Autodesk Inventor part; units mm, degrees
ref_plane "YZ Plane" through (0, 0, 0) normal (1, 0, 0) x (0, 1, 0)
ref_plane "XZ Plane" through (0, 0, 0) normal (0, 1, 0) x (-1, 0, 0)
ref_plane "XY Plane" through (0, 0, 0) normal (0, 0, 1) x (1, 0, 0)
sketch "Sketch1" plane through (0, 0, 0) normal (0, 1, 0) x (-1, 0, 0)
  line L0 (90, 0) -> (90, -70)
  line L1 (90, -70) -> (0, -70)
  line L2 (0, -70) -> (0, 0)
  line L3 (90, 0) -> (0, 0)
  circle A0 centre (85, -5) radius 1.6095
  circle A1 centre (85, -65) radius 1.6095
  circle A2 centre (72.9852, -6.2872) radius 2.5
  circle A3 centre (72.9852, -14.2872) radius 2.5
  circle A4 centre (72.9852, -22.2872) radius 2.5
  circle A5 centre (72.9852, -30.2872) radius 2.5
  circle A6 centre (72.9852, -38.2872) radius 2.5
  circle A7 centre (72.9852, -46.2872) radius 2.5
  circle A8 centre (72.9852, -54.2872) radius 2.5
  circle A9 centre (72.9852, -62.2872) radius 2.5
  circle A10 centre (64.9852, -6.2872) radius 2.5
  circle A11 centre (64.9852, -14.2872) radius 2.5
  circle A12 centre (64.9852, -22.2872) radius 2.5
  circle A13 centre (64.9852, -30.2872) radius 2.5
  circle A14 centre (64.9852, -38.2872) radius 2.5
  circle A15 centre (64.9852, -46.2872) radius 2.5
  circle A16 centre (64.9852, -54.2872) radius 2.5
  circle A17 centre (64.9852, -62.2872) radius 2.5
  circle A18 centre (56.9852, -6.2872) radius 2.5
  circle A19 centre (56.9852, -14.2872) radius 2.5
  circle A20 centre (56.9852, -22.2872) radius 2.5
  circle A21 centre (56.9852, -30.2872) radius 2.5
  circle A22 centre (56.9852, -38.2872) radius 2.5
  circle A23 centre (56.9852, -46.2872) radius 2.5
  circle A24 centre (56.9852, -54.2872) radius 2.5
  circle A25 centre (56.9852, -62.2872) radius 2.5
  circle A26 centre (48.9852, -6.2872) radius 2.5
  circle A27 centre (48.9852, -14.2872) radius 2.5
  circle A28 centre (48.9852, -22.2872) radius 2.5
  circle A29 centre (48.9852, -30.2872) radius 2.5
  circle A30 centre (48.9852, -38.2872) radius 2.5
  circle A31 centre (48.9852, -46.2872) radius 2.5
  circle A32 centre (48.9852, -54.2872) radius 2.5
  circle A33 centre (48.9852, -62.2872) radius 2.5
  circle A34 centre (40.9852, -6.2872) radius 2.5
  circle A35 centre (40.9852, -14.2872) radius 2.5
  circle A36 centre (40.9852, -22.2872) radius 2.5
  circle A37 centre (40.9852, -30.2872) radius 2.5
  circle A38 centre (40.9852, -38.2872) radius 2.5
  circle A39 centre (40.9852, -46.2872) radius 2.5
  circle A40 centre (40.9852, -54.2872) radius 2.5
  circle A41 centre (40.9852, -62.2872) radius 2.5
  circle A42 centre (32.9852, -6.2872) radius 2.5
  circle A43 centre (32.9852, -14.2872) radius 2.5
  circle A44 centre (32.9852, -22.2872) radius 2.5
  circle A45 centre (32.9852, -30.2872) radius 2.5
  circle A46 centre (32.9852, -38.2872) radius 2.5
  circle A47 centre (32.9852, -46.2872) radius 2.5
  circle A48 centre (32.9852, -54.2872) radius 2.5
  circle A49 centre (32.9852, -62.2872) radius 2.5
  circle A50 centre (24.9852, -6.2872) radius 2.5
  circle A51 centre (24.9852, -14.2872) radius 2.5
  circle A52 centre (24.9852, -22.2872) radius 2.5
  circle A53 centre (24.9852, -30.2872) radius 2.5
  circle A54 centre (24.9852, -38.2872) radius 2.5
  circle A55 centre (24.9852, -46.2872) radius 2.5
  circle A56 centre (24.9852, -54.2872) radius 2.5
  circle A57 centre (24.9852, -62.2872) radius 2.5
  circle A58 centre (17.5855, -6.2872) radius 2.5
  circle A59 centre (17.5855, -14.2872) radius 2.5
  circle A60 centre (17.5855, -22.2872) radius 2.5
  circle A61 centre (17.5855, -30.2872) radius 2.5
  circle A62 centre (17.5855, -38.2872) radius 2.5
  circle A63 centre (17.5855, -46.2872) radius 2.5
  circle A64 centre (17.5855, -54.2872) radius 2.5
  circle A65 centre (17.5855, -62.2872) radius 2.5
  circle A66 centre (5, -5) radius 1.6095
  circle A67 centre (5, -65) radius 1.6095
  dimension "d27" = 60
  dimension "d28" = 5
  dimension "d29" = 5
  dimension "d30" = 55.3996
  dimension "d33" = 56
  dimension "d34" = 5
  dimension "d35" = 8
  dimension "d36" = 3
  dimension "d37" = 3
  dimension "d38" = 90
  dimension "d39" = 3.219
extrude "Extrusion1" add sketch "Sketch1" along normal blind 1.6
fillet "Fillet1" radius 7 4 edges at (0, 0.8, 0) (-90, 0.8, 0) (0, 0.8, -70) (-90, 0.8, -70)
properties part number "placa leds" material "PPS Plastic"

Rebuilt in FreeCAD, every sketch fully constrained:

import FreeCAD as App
import Part
import Sketcher

V = App.Vector
Q = App.Units.Quantity


def edges_at(feature, points):
    """Names of the edges that pass closest to the given points."""
    edges = feature.Shape.Edges
    near = lambda p: min(range(len(edges)), key=lambda i: edges[i].distToShape(Part.Vertex(*p))[0])
    return sorted({f"Edge{near(p) + 1}" for p in points})

doc = App.newDocument("Part")
body = doc.addObject("PartDesign::Body", "Body")

# Sketch on XZ plane
sketch1 = doc.addObject("Sketcher::SketchObject", "Sketch")
body.addObject(sketch1)
sketch1.AttachmentSupport = (doc.XZ_Plane, [""])
sketch1.MapMode = "FlatFace"
sketch1.addGeometry([
    Part.LineSegment(V(-90, -70, 0), V(-90, 0, 0)),  # 0
    Part.LineSegment(V(-90, 0, 0), V(0, 0, 0)),  # 1
    Part.LineSegment(V(0, 0, 0), V(0, -70, 0)),  # 2
    Part.LineSegment(V(0, -70, 0), V(-90, -70, 0)),  # 3
    Part.Circle(V(-5, -65, 0), V(0, 0, 1), 1.6),  # 4
    Part.Circle(V(-17.6, -62.3, 0), V(0, 0, 1), 2.5),  # 5
    Part.Circle(V(-17.6, -54.3, 0), V(0, 0, 1), 2.5),  # 6
    Part.Circle(V(-25, -62.3, 0), V(0, 0, 1), 2.5),  # 7
    Part.Circle(V(-33, -62.3, 0), V(0, 0, 1), 2.5),  # 8
    Part.Circle(V(-41, -62.3, 0), V(0, 0, 1), 2.5),  # 9
    Part.Circle(V(-25, -54.3, 0), V(0, 0, 1), 2.5),  # 10
    Part.Circle(V(-33, -54.3, 0), V(0, 0, 1), 2.5),  # 11
    Part.Circle(V(-41, -54.3, 0), V(0, 0, 1), 2.5),  # 12
    Part.Circle(V(-17.6, -46.3, 0), V(0, 0, 1), 2.5),  # 13
    Part.Circle(V(-17.6, -38.3, 0), V(0, 0, 1), 2.5),  # 14
    Part.Circle(V(-25, -46.3, 0), V(0, 0, 1), 2.5),  # 15
    Part.Circle(V(-33, -46.3, 0), V(0, 0, 1), 2.5),  # 16
    Part.Circle(V(-41, -46.3, 0), V(0, 0, 1), 2.5),  # 17
    Part.Circle(V(-25, -38.3, 0), V(0, 0, 1), 2.5),  # 18
    Part.Circle(V(-33, -38.3, 0), V(0, 0, 1), 2.5),  # 19
    Part.Circle(V(-41, -38.3, 0), V(0, 0, 1), 2.5),  # 20
    Part.Circle(V(-49, -62.3, 0), V(0, 0, 1), 2.5),  # 21
    Part.Circle(V(-57, -62.3, 0), V(0, 0, 1), 2.5),  # 22
    Part.Circle(V(-65, -62.3, 0), V(0, 0, 1), 2.5),  # 23
    Part.Circle(V(-49, -54.3, 0), V(0, 0, 1), 2.5),  # 24
    Part.Circle(V(-57, -54.3, 0), V(0, 0, 1), 2.5),  # 25
    Part.Circle(V(-65, -54.3, 0), V(0, 0, 1), 2.5),  # 26
    Part.Circle(V(-73, -62.3, 0), V(0, 0, 1), 2.5),  # 27
    Part.Circle(V(-85, -65, 0), V(0, 0, 1), 1.6),  # 28
    Part.Circle(V(-73, -54.3, 0), V(0, 0, 1), 2.5),  # 29
    Part.Circle(V(-49, -46.3, 0), V(0, 0, 1), 2.5),  # 30
    Part.Circle(V(-57, -46.3, 0), V(0, 0, 1), 2.5),  # 31
    Part.Circle(V(-65, -46.3, 0), V(0, 0, 1), 2.5),  # 32
    Part.Circle(V(-49, -38.3, 0), V(0, 0, 1), 2.5),  # 33
    Part.Circle(V(-57, -38.3, 0), V(0, 0, 1), 2.5),  # 34
    Part.Circle(V(-65, -38.3, 0), V(0, 0, 1), 2.5),  # 35
    Part.Circle(V(-73, -46.3, 0), V(0, 0, 1), 2.5),  # 36
    Part.Circle(V(-73, -38.3, 0), V(0, 0, 1), 2.5),  # 37
    Part.Circle(V(-17.6, -30.3, 0), V(0, 0, 1), 2.5),  # 38
    Part.Circle(V(-17.6, -22.3, 0), V(0, 0, 1), 2.5),  # 39
    Part.Circle(V(-25, -30.3, 0), V(0, 0, 1), 2.5),  # 40
    Part.Circle(V(-33, -30.3, 0), V(0, 0, 1), 2.5),  # 41
    Part.Circle(V(-41, -30.3, 0), V(0, 0, 1), 2.5),  # 42
    Part.Circle(V(-25, -22.3, 0), V(0, 0, 1), 2.5),  # 43
    Part.Circle(V(-33, -22.3, 0), V(0, 0, 1), 2.5),  # 44
    Part.Circle(V(-41, -22.3, 0), V(0, 0, 1), 2.5),  # 45
    Part.Circle(V(-17.6, -14.3, 0), V(0, 0, 1), 2.5),  # 46
    Part.Circle(V(-5, -5, 0), V(0, 0, 1), 1.6),  # 47
    Part.Circle(V(-17.6, -6.3, 0), V(0, 0, 1), 2.5),  # 48
    Part.Circle(V(-25, -14.3, 0), V(0, 0, 1), 2.5),  # 49
    Part.Circle(V(-33, -14.3, 0), V(0, 0, 1), 2.5),  # 50
    Part.Circle(V(-41, -14.3, 0), V(0, 0, 1), 2.5),  # 51
    Part.Circle(V(-25, -6.3, 0), V(0, 0, 1), 2.5),  # 52
    Part.Circle(V(-33, -6.3, 0), V(0, 0, 1), 2.5),  # 53
    Part.Circle(V(-41, -6.3, 0), V(0, 0, 1), 2.5),  # 54
    Part.Circle(V(-49, -30.3, 0), V(0, 0, 1), 2.5),  # 55
    Part.Circle(V(-57, -30.3, 0), V(0, 0, 1), 2.5),  # 56
    Part.Circle(V(-65, -30.3, 0), V(0, 0, 1), 2.5),  # 57
    Part.Circle(V(-49, -22.3, 0), V(0, 0, 1), 2.5),  # 58
    Part.Circle(V(-57, -22.3, 0), V(0, 0, 1), 2.5),  # 59
    Part.Circle(V(-65, -22.3, 0), V(0, 0, 1), 2.5),  # 60
    Part.Circle(V(-73, -30.3, 0), V(0, 0, 1), 2.5),  # 61
    Part.Circle(V(-73, -22.3, 0), V(0, 0, 1), 2.5),  # 62
    Part.Circle(V(-49, -14.3, 0), V(0, 0, 1), 2.5),  # 63
    Part.Circle(V(-57, -14.3, 0), V(0, 0, 1), 2.5),  # 64
    Part.Circle(V(-65, -14.3, 0), V(0, 0, 1), 2.5),  # 65
    Part.Circle(V(-49, -6.3, 0), V(0, 0, 1), 2.5),  # 66
    Part.Circle(V(-57, -6.3, 0), V(0, 0, 1), 2.5),  # 67
    Part.Circle(V(-65, -6.3, 0), V(0, 0, 1), 2.5),  # 68
    Part.Circle(V(-73, -14.3, 0), V(0, 0, 1), 2.5),  # 69
    Part.Circle(V(-73, -6.3, 0), V(0, 0, 1), 2.5),  # 70
    Part.Circle(V(-85, -5, 0), V(0, 0, 1), 1.6),  # 71
], False)
sketch1.addConstraint([
    Sketcher.Constraint("Coincident", 0, 2, 1, 1),
    Sketcher.Constraint("Coincident", 1, 2, 2, 1),
    Sketcher.Constraint("Coincident", 2, 2, 3, 1),
    Sketcher.Constraint("Coincident", 3, 2, 0, 1),
    Sketcher.Constraint("Vertical", 0),
    Sketcher.Constraint("Horizontal", 1),
    Sketcher.Constraint("Vertical", 2),
    Sketcher.Constraint("Horizontal", 3),
    Sketcher.Constraint("Coincident", 1, 2, -1, 1),
    Sketcher.Constraint("Equal", 5, 6),
    Sketcher.Constraint("Equal", 6, 7),
    Sketcher.Constraint("Equal", 7, 8),
    Sketcher.Constraint("Equal", 8, 9),
    Sketcher.Constraint("Equal", 9, 10),
    Sketcher.Constraint("Equal", 10, 11),
    Sketcher.Constraint("Equal", 11, 12),
    Sketcher.Constraint("Equal", 12, 13),
    Sketcher.Constraint("Equal", 13, 14),
    Sketcher.Constraint("Equal", 14, 15),
    Sketcher.Constraint("Equal", 15, 16),
    Sketcher.Constraint("Equal", 16, 17),
    Sketcher.Constraint("Equal", 17, 18),
    Sketcher.Constraint("Equal", 18, 19),
    Sketcher.Constraint("Equal", 19, 20),
    Sketcher.Constraint("Equal", 20, 21),
    Sketcher.Constraint("Equal", 21, 22),
    Sketcher.Constraint("Equal", 22, 23),
    Sketcher.Constraint("Equal", 23, 24),
    Sketcher.Constraint("Equal", 24, 25),
    Sketcher.Constraint("Equal", 25, 26),
    Sketcher.Constraint("Equal", 26, 27),
    Sketcher.Constraint("Equal", 4, 28),
    Sketcher.Constraint("Equal", 27, 29),
    Sketcher.Constraint("Equal", 29, 30),
    Sketcher.Constraint("Equal", 30, 31),
    Sketcher.Constraint("Equal", 31, 32),
    Sketcher.Constraint("Equal", 32, 33),
    Sketcher.Constraint("Equal", 33, 34),
    Sketcher.Constraint("Equal", 34, 35),
    Sketcher.Constraint("Equal", 35, 36),
    Sketcher.Constraint("Equal", 36, 37),
    Sketcher.Constraint("Equal", 37, 38),
    Sketcher.Constraint("Equal", 38, 39),
    Sketcher.Constraint("Equal", 39, 40),
    Sketcher.Constraint("Equal", 40, 41),
    Sketcher.Constraint("Equal", 41, 42),
    Sketcher.Constraint("Equal", 42, 43),
    Sketcher.Constraint("Equal", 43, 44),
    Sketcher.Constraint("Equal", 44, 45),
    Sketcher.Constraint("Equal", 45, 46),
    Sketcher.Constraint("Equal", 28, 47),
    Sketcher.Constraint("Equal", 46, 48),
    Sketcher.Constraint("Equal", 48, 49),
    Sketcher.Constraint("Equal", 49, 50),
    Sketcher.Constraint("Equal", 50, 51),
    Sketcher.Constraint("Equal", 51, 52),
    Sketcher.Constraint("Equal", 52, 53),
    Sketcher.Constraint("Equal", 53, 54),
    Sketcher.Constraint("Equal", 54, 55),
    Sketcher.Constraint("Equal", 55, 56),
    Sketcher.Constraint("Equal", 56, 57),
    Sketcher.Constraint("Equal", 57, 58),
    Sketcher.Constraint("Equal", 58, 59),
    Sketcher.Constraint("Equal", 59, 60),
    Sketcher.Constraint("Equal", 60, 61),
    Sketcher.Constraint("Equal", 61, 62),
    Sketcher.Constraint("Equal", 62, 63),
    Sketcher.Constraint("Equal", 63, 64),
    Sketcher.Constraint("Equal", 64, 65),
    Sketcher.Constraint("Equal", 65, 66),
    Sketcher.Constraint("Equal", 66, 67),
    Sketcher.Constraint("Equal", 67, 68),
    Sketcher.Constraint("Equal", 68, 69),
    Sketcher.Constraint("Equal", 69, 70),
    Sketcher.Constraint("Equal", 47, 71),
    Sketcher.Constraint("Horizontal", 5, 3, 7, 3),
    Sketcher.Constraint("Horizontal", 7, 3, 8, 3),
    Sketcher.Constraint("Horizontal", 8, 3, 9, 3),
    Sketcher.Constraint("Horizontal", 6, 3, 10, 3),
    Sketcher.Constraint("Horizontal", 10, 3, 11, 3),
    Sketcher.Constraint("Horizontal", 11, 3, 12, 3),
    Sketcher.Constraint("Horizontal", 13, 3, 15, 3),
    Sketcher.Constraint("Horizontal", 15, 3, 16, 3),
    Sketcher.Constraint("Horizontal", 16, 3, 17, 3),
    Sketcher.Constraint("Horizontal", 14, 3, 18, 3),
    Sketcher.Constraint("Horizontal", 18, 3, 19, 3),
    Sketcher.Constraint("Horizontal", 19, 3, 20, 3),
    Sketcher.Constraint("Horizontal", 9, 3, 21, 3),
    Sketcher.Constraint("Horizontal", 21, 3, 22, 3),
    Sketcher.Constraint("Horizontal", 22, 3, 23, 3),
    Sketcher.Constraint("Horizontal", 12, 3, 24, 3),
    Sketcher.Constraint("Horizontal", 24, 3, 25, 3),
    Sketcher.Constraint("Horizontal", 25, 3, 26, 3),
    Sketcher.Constraint("Horizontal", 23, 3, 27, 3),
    Sketcher.Constraint("Horizontal", 4, 3, 28, 3),
    Sketcher.Constraint("Horizontal", 26, 3, 29, 3),
    Sketcher.Constraint("Horizontal", 17, 3, 30, 3),
    Sketcher.Constraint("Horizontal", 30, 3, 31, 3),
    Sketcher.Constraint("Horizontal", 31, 3, 32, 3),
    Sketcher.Constraint("Horizontal", 20, 3, 33, 3),
    Sketcher.Constraint("Horizontal", 33, 3, 34, 3),
    Sketcher.Constraint("Horizontal", 34, 3, 35, 3),
    Sketcher.Constraint("Horizontal", 32, 3, 36, 3),
    Sketcher.Constraint("Horizontal", 35, 3, 37, 3),
    Sketcher.Constraint("Horizontal", 38, 3, 40, 3),
    Sketcher.Constraint("Horizontal", 40, 3, 41, 3),
    Sketcher.Constraint("Horizontal", 41, 3, 42, 3),
    Sketcher.Constraint("Horizontal", 39, 3, 43, 3),
    Sketcher.Constraint("Horizontal", 43, 3, 44, 3),
    Sketcher.Constraint("Horizontal", 44, 3, 45, 3),
    Sketcher.Constraint("Horizontal", 46, 3, 49, 3),
    Sketcher.Constraint("Horizontal", 49, 3, 50, 3),
    Sketcher.Constraint("Horizontal", 50, 3, 51, 3),
    Sketcher.Constraint("Horizontal", 48, 3, 52, 3),
    Sketcher.Constraint("Horizontal", 52, 3, 53, 3),
    Sketcher.Constraint("Horizontal", 53, 3, 54, 3),
    Sketcher.Constraint("Horizontal", 42, 3, 55, 3),
    Sketcher.Constraint("Horizontal", 55, 3, 56, 3),
    Sketcher.Constraint("Horizontal", 56, 3, 57, 3),
    Sketcher.Constraint("Horizontal", 45, 3, 58, 3),
    Sketcher.Constraint("Horizontal", 58, 3, 59, 3),
    Sketcher.Constraint("Horizontal", 59, 3, 60, 3),
    Sketcher.Constraint("Horizontal", 57, 3, 61, 3),
    Sketcher.Constraint("Horizontal", 60, 3, 62, 3),
    Sketcher.Constraint("Horizontal", 51, 3, 63, 3),
    Sketcher.Constraint("Horizontal", 63, 3, 64, 3),
    Sketcher.Constraint("Horizontal", 64, 3, 65, 3),
    Sketcher.Constraint("Horizontal", 54, 3, 66, 3),
    Sketcher.Constraint("Horizontal", 66, 3, 67, 3),
    Sketcher.Constraint("Horizontal", 67, 3, 68, 3),
    Sketcher.Constraint("Horizontal", 65, 3, 69, 3),
    Sketcher.Constraint("Horizontal", 68, 3, 70, 3),
    Sketcher.Constraint("Horizontal", 47, 3, 71, 3),
    Sketcher.Constraint("Vertical", 5, 3, 6, 3),
    Sketcher.Constraint("Vertical", 7, 3, 10, 3),
    Sketcher.Constraint("Vertical", 8, 3, 11, 3),
    Sketcher.Constraint("Vertical", 9, 3, 12, 3),
    Sketcher.Constraint("Vertical", 6, 3, 13, 3),
    Sketcher.Constraint("Vertical", 13, 3, 14, 3),
    Sketcher.Constraint("Vertical", 10, 3, 15, 3),
    Sketcher.Constraint("Vertical", 11, 3, 16, 3),
    Sketcher.Constraint("Vertical", 12, 3, 17, 3),
    Sketcher.Constraint("Vertical", 15, 3, 18, 3),
    Sketcher.Constraint("Vertical", 16, 3, 19, 3),
    Sketcher.Constraint("Vertical", 17, 3, 20, 3),
    Sketcher.Constraint("Vertical", 21, 3, 24, 3),
    Sketcher.Constraint("Vertical", 22, 3, 25, 3),
    Sketcher.Constraint("Vertical", 23, 3, 26, 3),
    Sketcher.Constraint("Vertical", 27, 3, 29, 3),
    Sketcher.Constraint("Vertical", 24, 3, 30, 3),
    Sketcher.Constraint("Vertical", 25, 3, 31, 3),
    Sketcher.Constraint("Vertical", 26, 3, 32, 3),
    Sketcher.Constraint("Vertical", 30, 3, 33, 3),
    Sketcher.Constraint("Vertical", 31, 3, 34, 3),
    Sketcher.Constraint("Vertical", 32, 3, 35, 3),
    Sketcher.Constraint("Vertical", 29, 3, 36, 3),
    Sketcher.Constraint("Vertical", 36, 3, 37, 3),
    Sketcher.Constraint("Vertical", 14, 3, 38, 3),
    Sketcher.Constraint("Vertical", 38, 3, 39, 3),
    Sketcher.Constraint("Vertical", 18, 3, 40, 3),
    Sketcher.Constraint("Vertical", 19, 3, 41, 3),
    Sketcher.Constraint("Vertical", 20, 3, 42, 3),
    Sketcher.Constraint("Vertical", 40, 3, 43, 3),
    Sketcher.Constraint("Vertical", 41, 3, 44, 3),
    Sketcher.Constraint("Vertical", 42, 3, 45, 3),
    Sketcher.Constraint("Vertical", 39, 3, 46, 3),
    Sketcher.Constraint("Vertical", 4, 3, 47, 3),
    Sketcher.Constraint("Vertical", 46, 3, 48, 3),
    Sketcher.Constraint("Vertical", 43, 3, 49, 3),
    Sketcher.Constraint("Vertical", 44, 3, 50, 3),
    Sketcher.Constraint("Vertical", 45, 3, 51, 3),
    Sketcher.Constraint("Vertical", 49, 3, 52, 3),
    Sketcher.Constraint("Vertical", 50, 3, 53, 3),
    Sketcher.Constraint("Vertical", 51, 3, 54, 3),
    Sketcher.Constraint("Vertical", 33, 3, 55, 3),
    Sketcher.Constraint("Vertical", 34, 3, 56, 3),
    Sketcher.Constraint("Vertical", 35, 3, 57, 3),
    Sketcher.Constraint("Vertical", 55, 3, 58, 3),
    Sketcher.Constraint("Vertical", 56, 3, 59, 3),
    Sketcher.Constraint("Vertical", 57, 3, 60, 3),
    Sketcher.Constraint("Vertical", 37, 3, 61, 3),
    Sketcher.Constraint("Vertical", 61, 3, 62, 3),
    Sketcher.Constraint("Vertical", 58, 3, 63, 3),
    Sketcher.Constraint("Vertical", 59, 3, 64, 3),
    Sketcher.Constraint("Vertical", 60, 3, 65, 3),
    Sketcher.Constraint("Vertical", 63, 3, 66, 3),
    Sketcher.Constraint("Vertical", 64, 3, 67, 3),
    Sketcher.Constraint("Vertical", 65, 3, 68, 3),
    Sketcher.Constraint("Vertical", 62, 3, 69, 3),
    Sketcher.Constraint("Vertical", 69, 3, 70, 3),
    Sketcher.Constraint("Vertical", 28, 3, 71, 3),
    Sketcher.Constraint("Diameter", 5, Q("5 mm")),
    Sketcher.Constraint("DistanceX", 1, 1, 1, 2, Q("90 mm")),
    Sketcher.Constraint("Diameter", 4, Q("3.219 mm")),
    Sketcher.Constraint("DistanceX", 4, 3, -1, 1, Q("5 mm")),
    Sketcher.Constraint("DistanceY", 47, 3, -1, 1, Q("5 mm")),
    Sketcher.Constraint("DistanceY", 0, 1, 0, 2, Q("70 mm")),
    Sketcher.Constraint("DistanceY", 4, 3, -1, 1, Q("65 mm")),
    Sketcher.Constraint("DistanceX", 28, 3, -1, 1, Q("85 mm")),
    Sketcher.Constraint("DistanceX", 5, 3, -1, 1, Q("17.5855 mm")),
    Sketcher.Constraint("DistanceY", 5, 3, -1, 1, Q("62.2872 mm")),
    Sketcher.Constraint("DistanceY", 6, 3, -1, 1, Q("54.2872 mm")),
    Sketcher.Constraint("DistanceX", 7, 3, -1, 1, Q("24.9852 mm")),
    Sketcher.Constraint("DistanceX", 8, 3, -1, 1, Q("32.9852 mm")),
    Sketcher.Constraint("DistanceX", 9, 3, -1, 1, Q("40.9852 mm")),
    Sketcher.Constraint("DistanceY", 13, 3, -1, 1, Q("46.2872 mm")),
    Sketcher.Constraint("DistanceY", 14, 3, -1, 1, Q("38.2872 mm")),
    Sketcher.Constraint("DistanceX", 21, 3, -1, 1, Q("48.9852 mm")),
    Sketcher.Constraint("DistanceX", 22, 3, -1, 1, Q("56.9852 mm")),
    Sketcher.Constraint("DistanceX", 23, 3, -1, 1, Q("64.9852 mm")),
    Sketcher.Constraint("DistanceX", 27, 3, -1, 1, Q("72.9852 mm")),
    Sketcher.Constraint("DistanceY", 38, 3, -1, 1, Q("30.2872 mm")),
    Sketcher.Constraint("DistanceY", 39, 3, -1, 1, Q("22.2872 mm")),
    Sketcher.Constraint("DistanceY", 46, 3, -1, 1, Q("14.2872 mm")),
    Sketcher.Constraint("DistanceY", 48, 3, -1, 1, Q("6.2872 mm")),
])
pad1 = doc.addObject("PartDesign::Pad", "Pad")
body.addObject(pad1)
pad1.Profile = sketch1
pad1.Length = 1.6
pad1.Reversed = True
doc.recompute()

fillet = doc.addObject("PartDesign::Fillet", "Fillet")
body.addObject(fillet)
fillet.Base = (pad1, edges_at(pad1, [
    (0, 0.8, 0),
    (-90, 0.8, 0),
    (0, 0.8, -70),
    (-90, 0.8, -70),
]))
fillet.Radius = 7

doc.recompute()
